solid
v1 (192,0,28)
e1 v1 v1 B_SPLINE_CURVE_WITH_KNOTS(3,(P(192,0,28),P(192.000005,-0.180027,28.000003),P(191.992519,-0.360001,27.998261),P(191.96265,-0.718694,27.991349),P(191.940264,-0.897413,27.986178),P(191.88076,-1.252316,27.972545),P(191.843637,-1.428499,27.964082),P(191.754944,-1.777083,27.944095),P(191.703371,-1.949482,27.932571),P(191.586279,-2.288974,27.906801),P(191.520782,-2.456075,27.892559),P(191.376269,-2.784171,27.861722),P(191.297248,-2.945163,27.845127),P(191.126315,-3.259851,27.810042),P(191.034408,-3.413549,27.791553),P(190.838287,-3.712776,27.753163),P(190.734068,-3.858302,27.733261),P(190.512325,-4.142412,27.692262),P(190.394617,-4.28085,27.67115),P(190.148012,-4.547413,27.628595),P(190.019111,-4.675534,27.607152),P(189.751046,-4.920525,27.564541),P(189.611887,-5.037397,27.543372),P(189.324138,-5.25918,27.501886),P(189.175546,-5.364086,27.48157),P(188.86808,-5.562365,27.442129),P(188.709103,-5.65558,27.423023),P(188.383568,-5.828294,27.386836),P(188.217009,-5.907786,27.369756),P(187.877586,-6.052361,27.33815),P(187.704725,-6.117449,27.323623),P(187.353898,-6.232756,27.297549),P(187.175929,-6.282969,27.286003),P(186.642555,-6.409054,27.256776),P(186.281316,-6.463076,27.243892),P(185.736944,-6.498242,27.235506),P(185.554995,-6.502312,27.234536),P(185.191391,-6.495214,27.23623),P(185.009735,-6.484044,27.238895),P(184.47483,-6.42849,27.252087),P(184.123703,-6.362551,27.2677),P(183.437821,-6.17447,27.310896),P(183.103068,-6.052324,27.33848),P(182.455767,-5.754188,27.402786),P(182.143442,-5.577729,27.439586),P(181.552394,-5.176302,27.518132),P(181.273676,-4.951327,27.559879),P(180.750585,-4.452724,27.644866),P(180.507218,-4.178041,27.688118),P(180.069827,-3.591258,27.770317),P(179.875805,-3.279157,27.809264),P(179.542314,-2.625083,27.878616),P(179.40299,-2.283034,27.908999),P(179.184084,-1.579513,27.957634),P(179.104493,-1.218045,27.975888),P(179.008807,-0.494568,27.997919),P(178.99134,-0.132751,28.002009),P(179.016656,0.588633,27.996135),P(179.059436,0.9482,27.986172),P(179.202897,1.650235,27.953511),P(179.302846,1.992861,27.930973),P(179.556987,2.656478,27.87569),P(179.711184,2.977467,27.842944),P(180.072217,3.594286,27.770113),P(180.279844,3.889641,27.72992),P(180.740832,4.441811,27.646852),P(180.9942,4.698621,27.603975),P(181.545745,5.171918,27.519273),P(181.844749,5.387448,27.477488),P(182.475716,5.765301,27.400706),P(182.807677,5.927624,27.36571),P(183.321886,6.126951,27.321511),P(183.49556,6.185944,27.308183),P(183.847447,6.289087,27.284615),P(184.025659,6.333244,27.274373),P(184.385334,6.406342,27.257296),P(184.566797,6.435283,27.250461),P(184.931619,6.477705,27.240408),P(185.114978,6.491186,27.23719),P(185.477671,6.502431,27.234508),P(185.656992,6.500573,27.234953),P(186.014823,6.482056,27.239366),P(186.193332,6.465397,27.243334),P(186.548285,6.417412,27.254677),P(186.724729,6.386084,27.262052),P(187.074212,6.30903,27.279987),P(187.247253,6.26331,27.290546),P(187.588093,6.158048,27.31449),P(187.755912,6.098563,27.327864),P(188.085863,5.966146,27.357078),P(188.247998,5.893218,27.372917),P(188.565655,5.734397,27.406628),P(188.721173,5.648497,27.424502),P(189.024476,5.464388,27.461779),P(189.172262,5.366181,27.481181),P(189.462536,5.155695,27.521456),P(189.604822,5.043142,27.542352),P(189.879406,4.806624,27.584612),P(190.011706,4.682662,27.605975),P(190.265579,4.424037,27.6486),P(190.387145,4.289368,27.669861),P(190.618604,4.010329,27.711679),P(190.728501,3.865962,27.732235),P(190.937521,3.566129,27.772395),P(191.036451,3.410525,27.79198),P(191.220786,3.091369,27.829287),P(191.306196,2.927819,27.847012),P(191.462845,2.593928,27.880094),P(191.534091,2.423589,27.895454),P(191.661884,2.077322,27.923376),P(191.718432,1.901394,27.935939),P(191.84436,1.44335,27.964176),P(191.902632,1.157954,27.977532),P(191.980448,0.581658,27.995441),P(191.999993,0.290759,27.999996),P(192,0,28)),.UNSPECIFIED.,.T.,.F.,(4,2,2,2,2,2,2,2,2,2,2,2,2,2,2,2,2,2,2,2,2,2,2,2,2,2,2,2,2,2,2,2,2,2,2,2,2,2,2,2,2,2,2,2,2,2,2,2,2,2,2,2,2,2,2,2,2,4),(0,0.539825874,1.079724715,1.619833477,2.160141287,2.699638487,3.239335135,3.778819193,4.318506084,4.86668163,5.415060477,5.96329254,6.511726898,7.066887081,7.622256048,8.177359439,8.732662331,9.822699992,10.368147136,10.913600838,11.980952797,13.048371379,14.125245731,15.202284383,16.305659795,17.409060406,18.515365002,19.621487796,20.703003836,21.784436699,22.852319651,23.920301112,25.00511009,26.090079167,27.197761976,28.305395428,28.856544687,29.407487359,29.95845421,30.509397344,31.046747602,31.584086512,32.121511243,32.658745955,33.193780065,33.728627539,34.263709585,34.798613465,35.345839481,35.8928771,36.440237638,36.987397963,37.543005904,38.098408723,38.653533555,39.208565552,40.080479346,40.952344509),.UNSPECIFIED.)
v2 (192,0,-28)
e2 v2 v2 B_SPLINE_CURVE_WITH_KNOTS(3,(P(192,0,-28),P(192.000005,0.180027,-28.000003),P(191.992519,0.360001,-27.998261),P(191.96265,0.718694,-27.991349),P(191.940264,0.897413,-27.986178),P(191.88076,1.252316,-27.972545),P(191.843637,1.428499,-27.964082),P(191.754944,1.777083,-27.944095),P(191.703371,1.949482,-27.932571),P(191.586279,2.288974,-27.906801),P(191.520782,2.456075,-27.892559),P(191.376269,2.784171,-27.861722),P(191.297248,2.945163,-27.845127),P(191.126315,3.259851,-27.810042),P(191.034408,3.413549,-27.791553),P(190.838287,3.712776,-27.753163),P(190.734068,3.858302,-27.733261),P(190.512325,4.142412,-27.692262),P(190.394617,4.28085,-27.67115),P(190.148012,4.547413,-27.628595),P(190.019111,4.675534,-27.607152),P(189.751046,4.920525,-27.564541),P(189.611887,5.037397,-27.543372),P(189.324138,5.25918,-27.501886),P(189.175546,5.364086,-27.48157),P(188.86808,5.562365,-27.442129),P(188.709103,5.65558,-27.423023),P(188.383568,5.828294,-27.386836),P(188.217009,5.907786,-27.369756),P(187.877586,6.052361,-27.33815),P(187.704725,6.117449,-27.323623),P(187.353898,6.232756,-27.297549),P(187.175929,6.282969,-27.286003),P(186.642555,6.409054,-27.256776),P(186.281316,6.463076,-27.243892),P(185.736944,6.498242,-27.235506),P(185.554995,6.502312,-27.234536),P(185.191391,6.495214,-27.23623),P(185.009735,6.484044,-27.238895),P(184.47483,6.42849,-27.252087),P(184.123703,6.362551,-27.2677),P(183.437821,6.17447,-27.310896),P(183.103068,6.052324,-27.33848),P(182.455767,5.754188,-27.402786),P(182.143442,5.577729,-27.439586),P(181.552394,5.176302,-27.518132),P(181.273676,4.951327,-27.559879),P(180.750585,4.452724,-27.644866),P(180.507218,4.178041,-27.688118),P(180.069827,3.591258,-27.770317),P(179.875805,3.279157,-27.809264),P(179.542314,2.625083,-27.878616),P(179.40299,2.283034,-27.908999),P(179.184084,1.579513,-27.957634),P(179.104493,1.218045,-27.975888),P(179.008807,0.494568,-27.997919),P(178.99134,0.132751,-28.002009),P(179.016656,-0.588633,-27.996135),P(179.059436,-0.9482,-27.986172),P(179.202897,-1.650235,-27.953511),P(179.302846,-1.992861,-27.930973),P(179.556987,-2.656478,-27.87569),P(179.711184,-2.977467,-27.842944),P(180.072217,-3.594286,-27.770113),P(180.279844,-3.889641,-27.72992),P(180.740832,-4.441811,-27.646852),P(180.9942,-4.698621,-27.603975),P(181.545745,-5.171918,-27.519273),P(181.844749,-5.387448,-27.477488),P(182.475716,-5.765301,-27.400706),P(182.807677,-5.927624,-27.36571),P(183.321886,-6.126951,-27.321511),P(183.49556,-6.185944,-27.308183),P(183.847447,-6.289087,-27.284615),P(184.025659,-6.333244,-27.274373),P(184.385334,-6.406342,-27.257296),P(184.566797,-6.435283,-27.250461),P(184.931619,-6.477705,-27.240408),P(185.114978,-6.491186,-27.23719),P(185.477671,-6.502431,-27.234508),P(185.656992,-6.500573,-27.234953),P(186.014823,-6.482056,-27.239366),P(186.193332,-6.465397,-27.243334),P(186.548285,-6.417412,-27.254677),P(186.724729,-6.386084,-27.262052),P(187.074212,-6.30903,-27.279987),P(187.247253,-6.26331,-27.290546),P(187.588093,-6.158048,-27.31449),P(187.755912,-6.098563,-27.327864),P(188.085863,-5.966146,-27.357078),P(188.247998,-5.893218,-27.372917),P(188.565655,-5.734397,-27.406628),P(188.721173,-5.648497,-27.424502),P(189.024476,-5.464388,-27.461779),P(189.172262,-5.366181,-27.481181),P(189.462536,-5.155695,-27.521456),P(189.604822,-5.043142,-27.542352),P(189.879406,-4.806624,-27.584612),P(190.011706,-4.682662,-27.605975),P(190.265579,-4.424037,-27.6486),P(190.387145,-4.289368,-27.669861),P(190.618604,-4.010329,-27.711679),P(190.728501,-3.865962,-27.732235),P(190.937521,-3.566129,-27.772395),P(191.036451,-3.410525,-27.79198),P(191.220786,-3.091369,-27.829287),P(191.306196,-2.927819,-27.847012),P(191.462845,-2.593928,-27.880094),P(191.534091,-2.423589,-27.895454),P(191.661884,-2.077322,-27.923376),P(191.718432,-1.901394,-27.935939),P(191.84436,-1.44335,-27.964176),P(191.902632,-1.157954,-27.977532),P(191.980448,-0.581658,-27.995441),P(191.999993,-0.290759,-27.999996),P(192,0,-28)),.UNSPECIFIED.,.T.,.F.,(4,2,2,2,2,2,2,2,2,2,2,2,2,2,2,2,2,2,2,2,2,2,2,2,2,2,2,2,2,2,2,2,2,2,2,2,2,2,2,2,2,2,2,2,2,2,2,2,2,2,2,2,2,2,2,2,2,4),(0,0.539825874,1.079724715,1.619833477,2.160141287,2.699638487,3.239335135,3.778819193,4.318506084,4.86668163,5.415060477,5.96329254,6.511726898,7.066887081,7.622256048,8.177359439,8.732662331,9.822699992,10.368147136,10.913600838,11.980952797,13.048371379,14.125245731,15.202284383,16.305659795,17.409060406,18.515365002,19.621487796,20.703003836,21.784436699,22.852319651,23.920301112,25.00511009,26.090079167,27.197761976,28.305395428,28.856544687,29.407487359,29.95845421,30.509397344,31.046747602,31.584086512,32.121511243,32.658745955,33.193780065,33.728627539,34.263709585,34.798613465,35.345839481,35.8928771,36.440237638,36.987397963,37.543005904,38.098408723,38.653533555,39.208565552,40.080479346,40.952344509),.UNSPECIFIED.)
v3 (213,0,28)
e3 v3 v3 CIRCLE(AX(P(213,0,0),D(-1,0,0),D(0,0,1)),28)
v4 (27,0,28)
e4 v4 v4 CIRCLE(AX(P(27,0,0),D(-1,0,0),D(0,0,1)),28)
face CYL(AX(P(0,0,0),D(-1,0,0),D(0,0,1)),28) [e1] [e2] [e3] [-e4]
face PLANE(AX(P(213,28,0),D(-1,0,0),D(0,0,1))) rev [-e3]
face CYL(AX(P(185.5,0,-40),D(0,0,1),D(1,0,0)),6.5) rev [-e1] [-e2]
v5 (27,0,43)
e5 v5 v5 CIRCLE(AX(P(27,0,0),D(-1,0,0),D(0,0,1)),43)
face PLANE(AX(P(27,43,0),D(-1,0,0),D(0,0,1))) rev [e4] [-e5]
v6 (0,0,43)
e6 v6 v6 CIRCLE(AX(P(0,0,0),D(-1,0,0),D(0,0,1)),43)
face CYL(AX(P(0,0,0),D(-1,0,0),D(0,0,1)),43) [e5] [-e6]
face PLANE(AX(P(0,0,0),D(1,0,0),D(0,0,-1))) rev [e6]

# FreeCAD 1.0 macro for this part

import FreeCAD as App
import Part
import Sketcher

doc = App.newDocument("Part")
params = doc.addObject("Spreadsheet::Sheet", "Params")
for row, (alias, value) in enumerate([
    ("sketch1_width", "213 mm"),
    ("sketch1_width2", "186 mm"),
    ("sketch1_height", "43 mm"),
    ("sketch1_height2", "28 mm"),
    ("revolution_angle", "360 deg"),
    ("sketch2_diameter", "13 mm"),
    ("pocket1_length", "80 mm"),
], start=1):
    params.set(f"A{row}", alias)
    params.set(f"B{row}", "=" + value)
    params.setAlias(f"B{row}", alias)

body = doc.addObject("PartDesign::Body", "Body")

# Sketch on XY plane
sketch1 = body.newObject("Sketcher::SketchObject", "Sketch")
sketch1.AttachmentSupport = (doc.getObject("XY_Plane"), [""])
sketch1.MapMode = "FlatFace"
sketch1.addGeometry([
    Part.LineSegment(App.Vector(0, 43, 0), App.Vector(0, 0, 0)),  # 0
    Part.LineSegment(App.Vector(0, 0, 0), App.Vector(213, 0, 0)),  # 1
    Part.LineSegment(App.Vector(213, 0, 0), App.Vector(213, 28, 0)),  # 2
    Part.LineSegment(App.Vector(213, 28, 0), App.Vector(27, 28, 0)),  # 3
    Part.LineSegment(App.Vector(27, 28, 0), App.Vector(27, 43, 0)),  # 4
    Part.LineSegment(App.Vector(27, 43, 0), App.Vector(0, 43, 0)),  # 5
], False)
sketch1.addConstraint([
    Sketcher.Constraint("Coincident", 0, 2, 1, 1),
    Sketcher.Constraint("Coincident", 1, 2, 2, 1),
    Sketcher.Constraint("Coincident", 2, 2, 3, 1),
    Sketcher.Constraint("Coincident", 3, 2, 4, 1),
    Sketcher.Constraint("Coincident", 4, 2, 5, 1),
    Sketcher.Constraint("Coincident", 5, 2, 0, 1),
    Sketcher.Constraint("Vertical", 0),
    Sketcher.Constraint("Horizontal", 1),
    Sketcher.Constraint("Vertical", 2),
    Sketcher.Constraint("Horizontal", 3),
    Sketcher.Constraint("Vertical", 4),
    Sketcher.Constraint("Horizontal", 5),
    Sketcher.Constraint("Coincident", 0, 2, -1, 1),
    Sketcher.Constraint("DistanceX", 1, 1, 1, 2, 213.0),
    Sketcher.Constraint("DistanceX", 3, 2, 3, 1, 186.0),
    Sketcher.Constraint("DistanceY", 0, 2, 0, 1, 43.0),
    Sketcher.Constraint("DistanceY", 2, 1, 2, 2, 28.0),
])
sketch1.setExpression("Constraints[13]", "Params.sketch1_width")
sketch1.setExpression("Constraints[14]", "Params.sketch1_width2")
sketch1.setExpression("Constraints[15]", "Params.sketch1_height")
sketch1.setExpression("Constraints[16]", "Params.sketch1_height2")
revolution = body.newObject("PartDesign::Revolution", "Revolution")
revolution.Profile = sketch1
revolution.ReferenceAxis = (sketch1, ["H_Axis"])
revolution.setExpression("Angle", "Params.revolution_angle")

# Sketch on XY plane
sketch2 = body.newObject("Sketcher::SketchObject", "Sketch001")
sketch2.AttachmentSupport = (doc.getObject("XY_Plane"), [""])
sketch2.MapMode = "FlatFace"
sketch2.addGeometry(Part.Circle(App.Vector(186, 0, 0), App.Vector(0, 0, 1), 6), False)
sketch2.addConstraint([
    Sketcher.Constraint("PointOnObject", 0, 3, -1),
    Sketcher.Constraint("Diameter", 0, 13.0),
    Sketcher.Constraint("DistanceX", -1, 1, 0, 3, 185.5),
])
sketch2.setExpression("Constraints[1]", "Params.sketch2_diameter")
pocket1 = body.newObject("PartDesign::Pocket", "Pocket")
pocket1.Profile = sketch2
pocket1.setExpression("Length", "Params.pocket1_length")
pocket1.Midplane = True

doc.recompute()
